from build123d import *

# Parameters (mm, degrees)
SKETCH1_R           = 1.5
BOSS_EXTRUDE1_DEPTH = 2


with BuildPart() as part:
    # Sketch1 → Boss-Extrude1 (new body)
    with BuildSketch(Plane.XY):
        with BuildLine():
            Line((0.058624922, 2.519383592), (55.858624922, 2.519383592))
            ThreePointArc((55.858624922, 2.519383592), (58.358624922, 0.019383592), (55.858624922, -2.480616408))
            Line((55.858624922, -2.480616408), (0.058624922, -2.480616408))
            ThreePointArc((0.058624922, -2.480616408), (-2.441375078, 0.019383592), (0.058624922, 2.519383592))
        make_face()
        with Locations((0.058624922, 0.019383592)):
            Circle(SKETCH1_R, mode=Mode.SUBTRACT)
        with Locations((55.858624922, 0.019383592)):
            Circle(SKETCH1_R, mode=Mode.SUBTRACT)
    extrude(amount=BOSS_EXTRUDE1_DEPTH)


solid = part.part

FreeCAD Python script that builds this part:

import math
import FreeCAD as App
import Part
import Sketcher

doc = App.newDocument("Part")
body = doc.addObject("PartDesign::Body", "Body")

sketch1 = body.newObject("Sketcher::SketchObject", "Sketch")
sketch1.AttachmentSupport = (doc.getObject("XY_Plane"), [""])
sketch1.MapMode = "FlatFace"
sketch1.addGeometry([
    Part.LineSegment(App.Vector(55.858625, 2.519384, 0), App.Vector(0.058625, 2.519384, 0)),
    Part.ArcOfCircle(Part.Circle(App.Vector(0.058625, 0.019384, 0), App.Vector(0, 0, 1), 2.5), math.radians(90), math.radians(270)),
    Part.LineSegment(App.Vector(0.058625, -2.480616, 0), App.Vector(55.858625, -2.480616, 0)),
    Part.ArcOfCircle(Part.Circle(App.Vector(55.858625, 0.019384, 0), App.Vector(0, 0, 1), 2.5), math.radians(-90), math.radians(90)),
    Part.Circle(App.Vector(55.858625, 0.019384, 0), App.Vector(0, 0, 1), 1.5),
    Part.Circle(App.Vector(0.058625, 0.019384, 0), App.Vector(0, 0, 1), 1.5),
], False)
sketch1.addConstraint([
    Sketcher.Constraint("Tangent", 0, 2, 1, 1),
    Sketcher.Constraint("Tangent", 1, 2, 2, 1),
    Sketcher.Constraint("Tangent", 2, 2, 3, 1),
    Sketcher.Constraint("Tangent", 3, 2, 0, 1),
    Sketcher.Constraint("Horizontal", 0),
    Sketcher.Constraint("Horizontal", 2),
    Sketcher.Constraint("Coincident", 4, 3, 3, 3),
    Sketcher.Constraint("Coincident", 5, 3, 1, 3),
    Sketcher.Constraint("Equal", 4, 5),
    Sketcher.Constraint("Diameter", 4, 3.0),
    Sketcher.Constraint("Radius", 1, 2.5),
    Sketcher.Constraint("DistanceX", 0, 2, 0, 1, 55.8),
    Sketcher.Constraint("DistanceX", -1, 1, 1, 3, 0.058625),
    Sketcher.Constraint("DistanceY", -1, 1, 1, 3, 0.019384),
])
pad1 = body.newObject("PartDesign::Pad", "Pad")
pad1.Profile = sketch1
pad1.Length = 2

doc.recompute()
